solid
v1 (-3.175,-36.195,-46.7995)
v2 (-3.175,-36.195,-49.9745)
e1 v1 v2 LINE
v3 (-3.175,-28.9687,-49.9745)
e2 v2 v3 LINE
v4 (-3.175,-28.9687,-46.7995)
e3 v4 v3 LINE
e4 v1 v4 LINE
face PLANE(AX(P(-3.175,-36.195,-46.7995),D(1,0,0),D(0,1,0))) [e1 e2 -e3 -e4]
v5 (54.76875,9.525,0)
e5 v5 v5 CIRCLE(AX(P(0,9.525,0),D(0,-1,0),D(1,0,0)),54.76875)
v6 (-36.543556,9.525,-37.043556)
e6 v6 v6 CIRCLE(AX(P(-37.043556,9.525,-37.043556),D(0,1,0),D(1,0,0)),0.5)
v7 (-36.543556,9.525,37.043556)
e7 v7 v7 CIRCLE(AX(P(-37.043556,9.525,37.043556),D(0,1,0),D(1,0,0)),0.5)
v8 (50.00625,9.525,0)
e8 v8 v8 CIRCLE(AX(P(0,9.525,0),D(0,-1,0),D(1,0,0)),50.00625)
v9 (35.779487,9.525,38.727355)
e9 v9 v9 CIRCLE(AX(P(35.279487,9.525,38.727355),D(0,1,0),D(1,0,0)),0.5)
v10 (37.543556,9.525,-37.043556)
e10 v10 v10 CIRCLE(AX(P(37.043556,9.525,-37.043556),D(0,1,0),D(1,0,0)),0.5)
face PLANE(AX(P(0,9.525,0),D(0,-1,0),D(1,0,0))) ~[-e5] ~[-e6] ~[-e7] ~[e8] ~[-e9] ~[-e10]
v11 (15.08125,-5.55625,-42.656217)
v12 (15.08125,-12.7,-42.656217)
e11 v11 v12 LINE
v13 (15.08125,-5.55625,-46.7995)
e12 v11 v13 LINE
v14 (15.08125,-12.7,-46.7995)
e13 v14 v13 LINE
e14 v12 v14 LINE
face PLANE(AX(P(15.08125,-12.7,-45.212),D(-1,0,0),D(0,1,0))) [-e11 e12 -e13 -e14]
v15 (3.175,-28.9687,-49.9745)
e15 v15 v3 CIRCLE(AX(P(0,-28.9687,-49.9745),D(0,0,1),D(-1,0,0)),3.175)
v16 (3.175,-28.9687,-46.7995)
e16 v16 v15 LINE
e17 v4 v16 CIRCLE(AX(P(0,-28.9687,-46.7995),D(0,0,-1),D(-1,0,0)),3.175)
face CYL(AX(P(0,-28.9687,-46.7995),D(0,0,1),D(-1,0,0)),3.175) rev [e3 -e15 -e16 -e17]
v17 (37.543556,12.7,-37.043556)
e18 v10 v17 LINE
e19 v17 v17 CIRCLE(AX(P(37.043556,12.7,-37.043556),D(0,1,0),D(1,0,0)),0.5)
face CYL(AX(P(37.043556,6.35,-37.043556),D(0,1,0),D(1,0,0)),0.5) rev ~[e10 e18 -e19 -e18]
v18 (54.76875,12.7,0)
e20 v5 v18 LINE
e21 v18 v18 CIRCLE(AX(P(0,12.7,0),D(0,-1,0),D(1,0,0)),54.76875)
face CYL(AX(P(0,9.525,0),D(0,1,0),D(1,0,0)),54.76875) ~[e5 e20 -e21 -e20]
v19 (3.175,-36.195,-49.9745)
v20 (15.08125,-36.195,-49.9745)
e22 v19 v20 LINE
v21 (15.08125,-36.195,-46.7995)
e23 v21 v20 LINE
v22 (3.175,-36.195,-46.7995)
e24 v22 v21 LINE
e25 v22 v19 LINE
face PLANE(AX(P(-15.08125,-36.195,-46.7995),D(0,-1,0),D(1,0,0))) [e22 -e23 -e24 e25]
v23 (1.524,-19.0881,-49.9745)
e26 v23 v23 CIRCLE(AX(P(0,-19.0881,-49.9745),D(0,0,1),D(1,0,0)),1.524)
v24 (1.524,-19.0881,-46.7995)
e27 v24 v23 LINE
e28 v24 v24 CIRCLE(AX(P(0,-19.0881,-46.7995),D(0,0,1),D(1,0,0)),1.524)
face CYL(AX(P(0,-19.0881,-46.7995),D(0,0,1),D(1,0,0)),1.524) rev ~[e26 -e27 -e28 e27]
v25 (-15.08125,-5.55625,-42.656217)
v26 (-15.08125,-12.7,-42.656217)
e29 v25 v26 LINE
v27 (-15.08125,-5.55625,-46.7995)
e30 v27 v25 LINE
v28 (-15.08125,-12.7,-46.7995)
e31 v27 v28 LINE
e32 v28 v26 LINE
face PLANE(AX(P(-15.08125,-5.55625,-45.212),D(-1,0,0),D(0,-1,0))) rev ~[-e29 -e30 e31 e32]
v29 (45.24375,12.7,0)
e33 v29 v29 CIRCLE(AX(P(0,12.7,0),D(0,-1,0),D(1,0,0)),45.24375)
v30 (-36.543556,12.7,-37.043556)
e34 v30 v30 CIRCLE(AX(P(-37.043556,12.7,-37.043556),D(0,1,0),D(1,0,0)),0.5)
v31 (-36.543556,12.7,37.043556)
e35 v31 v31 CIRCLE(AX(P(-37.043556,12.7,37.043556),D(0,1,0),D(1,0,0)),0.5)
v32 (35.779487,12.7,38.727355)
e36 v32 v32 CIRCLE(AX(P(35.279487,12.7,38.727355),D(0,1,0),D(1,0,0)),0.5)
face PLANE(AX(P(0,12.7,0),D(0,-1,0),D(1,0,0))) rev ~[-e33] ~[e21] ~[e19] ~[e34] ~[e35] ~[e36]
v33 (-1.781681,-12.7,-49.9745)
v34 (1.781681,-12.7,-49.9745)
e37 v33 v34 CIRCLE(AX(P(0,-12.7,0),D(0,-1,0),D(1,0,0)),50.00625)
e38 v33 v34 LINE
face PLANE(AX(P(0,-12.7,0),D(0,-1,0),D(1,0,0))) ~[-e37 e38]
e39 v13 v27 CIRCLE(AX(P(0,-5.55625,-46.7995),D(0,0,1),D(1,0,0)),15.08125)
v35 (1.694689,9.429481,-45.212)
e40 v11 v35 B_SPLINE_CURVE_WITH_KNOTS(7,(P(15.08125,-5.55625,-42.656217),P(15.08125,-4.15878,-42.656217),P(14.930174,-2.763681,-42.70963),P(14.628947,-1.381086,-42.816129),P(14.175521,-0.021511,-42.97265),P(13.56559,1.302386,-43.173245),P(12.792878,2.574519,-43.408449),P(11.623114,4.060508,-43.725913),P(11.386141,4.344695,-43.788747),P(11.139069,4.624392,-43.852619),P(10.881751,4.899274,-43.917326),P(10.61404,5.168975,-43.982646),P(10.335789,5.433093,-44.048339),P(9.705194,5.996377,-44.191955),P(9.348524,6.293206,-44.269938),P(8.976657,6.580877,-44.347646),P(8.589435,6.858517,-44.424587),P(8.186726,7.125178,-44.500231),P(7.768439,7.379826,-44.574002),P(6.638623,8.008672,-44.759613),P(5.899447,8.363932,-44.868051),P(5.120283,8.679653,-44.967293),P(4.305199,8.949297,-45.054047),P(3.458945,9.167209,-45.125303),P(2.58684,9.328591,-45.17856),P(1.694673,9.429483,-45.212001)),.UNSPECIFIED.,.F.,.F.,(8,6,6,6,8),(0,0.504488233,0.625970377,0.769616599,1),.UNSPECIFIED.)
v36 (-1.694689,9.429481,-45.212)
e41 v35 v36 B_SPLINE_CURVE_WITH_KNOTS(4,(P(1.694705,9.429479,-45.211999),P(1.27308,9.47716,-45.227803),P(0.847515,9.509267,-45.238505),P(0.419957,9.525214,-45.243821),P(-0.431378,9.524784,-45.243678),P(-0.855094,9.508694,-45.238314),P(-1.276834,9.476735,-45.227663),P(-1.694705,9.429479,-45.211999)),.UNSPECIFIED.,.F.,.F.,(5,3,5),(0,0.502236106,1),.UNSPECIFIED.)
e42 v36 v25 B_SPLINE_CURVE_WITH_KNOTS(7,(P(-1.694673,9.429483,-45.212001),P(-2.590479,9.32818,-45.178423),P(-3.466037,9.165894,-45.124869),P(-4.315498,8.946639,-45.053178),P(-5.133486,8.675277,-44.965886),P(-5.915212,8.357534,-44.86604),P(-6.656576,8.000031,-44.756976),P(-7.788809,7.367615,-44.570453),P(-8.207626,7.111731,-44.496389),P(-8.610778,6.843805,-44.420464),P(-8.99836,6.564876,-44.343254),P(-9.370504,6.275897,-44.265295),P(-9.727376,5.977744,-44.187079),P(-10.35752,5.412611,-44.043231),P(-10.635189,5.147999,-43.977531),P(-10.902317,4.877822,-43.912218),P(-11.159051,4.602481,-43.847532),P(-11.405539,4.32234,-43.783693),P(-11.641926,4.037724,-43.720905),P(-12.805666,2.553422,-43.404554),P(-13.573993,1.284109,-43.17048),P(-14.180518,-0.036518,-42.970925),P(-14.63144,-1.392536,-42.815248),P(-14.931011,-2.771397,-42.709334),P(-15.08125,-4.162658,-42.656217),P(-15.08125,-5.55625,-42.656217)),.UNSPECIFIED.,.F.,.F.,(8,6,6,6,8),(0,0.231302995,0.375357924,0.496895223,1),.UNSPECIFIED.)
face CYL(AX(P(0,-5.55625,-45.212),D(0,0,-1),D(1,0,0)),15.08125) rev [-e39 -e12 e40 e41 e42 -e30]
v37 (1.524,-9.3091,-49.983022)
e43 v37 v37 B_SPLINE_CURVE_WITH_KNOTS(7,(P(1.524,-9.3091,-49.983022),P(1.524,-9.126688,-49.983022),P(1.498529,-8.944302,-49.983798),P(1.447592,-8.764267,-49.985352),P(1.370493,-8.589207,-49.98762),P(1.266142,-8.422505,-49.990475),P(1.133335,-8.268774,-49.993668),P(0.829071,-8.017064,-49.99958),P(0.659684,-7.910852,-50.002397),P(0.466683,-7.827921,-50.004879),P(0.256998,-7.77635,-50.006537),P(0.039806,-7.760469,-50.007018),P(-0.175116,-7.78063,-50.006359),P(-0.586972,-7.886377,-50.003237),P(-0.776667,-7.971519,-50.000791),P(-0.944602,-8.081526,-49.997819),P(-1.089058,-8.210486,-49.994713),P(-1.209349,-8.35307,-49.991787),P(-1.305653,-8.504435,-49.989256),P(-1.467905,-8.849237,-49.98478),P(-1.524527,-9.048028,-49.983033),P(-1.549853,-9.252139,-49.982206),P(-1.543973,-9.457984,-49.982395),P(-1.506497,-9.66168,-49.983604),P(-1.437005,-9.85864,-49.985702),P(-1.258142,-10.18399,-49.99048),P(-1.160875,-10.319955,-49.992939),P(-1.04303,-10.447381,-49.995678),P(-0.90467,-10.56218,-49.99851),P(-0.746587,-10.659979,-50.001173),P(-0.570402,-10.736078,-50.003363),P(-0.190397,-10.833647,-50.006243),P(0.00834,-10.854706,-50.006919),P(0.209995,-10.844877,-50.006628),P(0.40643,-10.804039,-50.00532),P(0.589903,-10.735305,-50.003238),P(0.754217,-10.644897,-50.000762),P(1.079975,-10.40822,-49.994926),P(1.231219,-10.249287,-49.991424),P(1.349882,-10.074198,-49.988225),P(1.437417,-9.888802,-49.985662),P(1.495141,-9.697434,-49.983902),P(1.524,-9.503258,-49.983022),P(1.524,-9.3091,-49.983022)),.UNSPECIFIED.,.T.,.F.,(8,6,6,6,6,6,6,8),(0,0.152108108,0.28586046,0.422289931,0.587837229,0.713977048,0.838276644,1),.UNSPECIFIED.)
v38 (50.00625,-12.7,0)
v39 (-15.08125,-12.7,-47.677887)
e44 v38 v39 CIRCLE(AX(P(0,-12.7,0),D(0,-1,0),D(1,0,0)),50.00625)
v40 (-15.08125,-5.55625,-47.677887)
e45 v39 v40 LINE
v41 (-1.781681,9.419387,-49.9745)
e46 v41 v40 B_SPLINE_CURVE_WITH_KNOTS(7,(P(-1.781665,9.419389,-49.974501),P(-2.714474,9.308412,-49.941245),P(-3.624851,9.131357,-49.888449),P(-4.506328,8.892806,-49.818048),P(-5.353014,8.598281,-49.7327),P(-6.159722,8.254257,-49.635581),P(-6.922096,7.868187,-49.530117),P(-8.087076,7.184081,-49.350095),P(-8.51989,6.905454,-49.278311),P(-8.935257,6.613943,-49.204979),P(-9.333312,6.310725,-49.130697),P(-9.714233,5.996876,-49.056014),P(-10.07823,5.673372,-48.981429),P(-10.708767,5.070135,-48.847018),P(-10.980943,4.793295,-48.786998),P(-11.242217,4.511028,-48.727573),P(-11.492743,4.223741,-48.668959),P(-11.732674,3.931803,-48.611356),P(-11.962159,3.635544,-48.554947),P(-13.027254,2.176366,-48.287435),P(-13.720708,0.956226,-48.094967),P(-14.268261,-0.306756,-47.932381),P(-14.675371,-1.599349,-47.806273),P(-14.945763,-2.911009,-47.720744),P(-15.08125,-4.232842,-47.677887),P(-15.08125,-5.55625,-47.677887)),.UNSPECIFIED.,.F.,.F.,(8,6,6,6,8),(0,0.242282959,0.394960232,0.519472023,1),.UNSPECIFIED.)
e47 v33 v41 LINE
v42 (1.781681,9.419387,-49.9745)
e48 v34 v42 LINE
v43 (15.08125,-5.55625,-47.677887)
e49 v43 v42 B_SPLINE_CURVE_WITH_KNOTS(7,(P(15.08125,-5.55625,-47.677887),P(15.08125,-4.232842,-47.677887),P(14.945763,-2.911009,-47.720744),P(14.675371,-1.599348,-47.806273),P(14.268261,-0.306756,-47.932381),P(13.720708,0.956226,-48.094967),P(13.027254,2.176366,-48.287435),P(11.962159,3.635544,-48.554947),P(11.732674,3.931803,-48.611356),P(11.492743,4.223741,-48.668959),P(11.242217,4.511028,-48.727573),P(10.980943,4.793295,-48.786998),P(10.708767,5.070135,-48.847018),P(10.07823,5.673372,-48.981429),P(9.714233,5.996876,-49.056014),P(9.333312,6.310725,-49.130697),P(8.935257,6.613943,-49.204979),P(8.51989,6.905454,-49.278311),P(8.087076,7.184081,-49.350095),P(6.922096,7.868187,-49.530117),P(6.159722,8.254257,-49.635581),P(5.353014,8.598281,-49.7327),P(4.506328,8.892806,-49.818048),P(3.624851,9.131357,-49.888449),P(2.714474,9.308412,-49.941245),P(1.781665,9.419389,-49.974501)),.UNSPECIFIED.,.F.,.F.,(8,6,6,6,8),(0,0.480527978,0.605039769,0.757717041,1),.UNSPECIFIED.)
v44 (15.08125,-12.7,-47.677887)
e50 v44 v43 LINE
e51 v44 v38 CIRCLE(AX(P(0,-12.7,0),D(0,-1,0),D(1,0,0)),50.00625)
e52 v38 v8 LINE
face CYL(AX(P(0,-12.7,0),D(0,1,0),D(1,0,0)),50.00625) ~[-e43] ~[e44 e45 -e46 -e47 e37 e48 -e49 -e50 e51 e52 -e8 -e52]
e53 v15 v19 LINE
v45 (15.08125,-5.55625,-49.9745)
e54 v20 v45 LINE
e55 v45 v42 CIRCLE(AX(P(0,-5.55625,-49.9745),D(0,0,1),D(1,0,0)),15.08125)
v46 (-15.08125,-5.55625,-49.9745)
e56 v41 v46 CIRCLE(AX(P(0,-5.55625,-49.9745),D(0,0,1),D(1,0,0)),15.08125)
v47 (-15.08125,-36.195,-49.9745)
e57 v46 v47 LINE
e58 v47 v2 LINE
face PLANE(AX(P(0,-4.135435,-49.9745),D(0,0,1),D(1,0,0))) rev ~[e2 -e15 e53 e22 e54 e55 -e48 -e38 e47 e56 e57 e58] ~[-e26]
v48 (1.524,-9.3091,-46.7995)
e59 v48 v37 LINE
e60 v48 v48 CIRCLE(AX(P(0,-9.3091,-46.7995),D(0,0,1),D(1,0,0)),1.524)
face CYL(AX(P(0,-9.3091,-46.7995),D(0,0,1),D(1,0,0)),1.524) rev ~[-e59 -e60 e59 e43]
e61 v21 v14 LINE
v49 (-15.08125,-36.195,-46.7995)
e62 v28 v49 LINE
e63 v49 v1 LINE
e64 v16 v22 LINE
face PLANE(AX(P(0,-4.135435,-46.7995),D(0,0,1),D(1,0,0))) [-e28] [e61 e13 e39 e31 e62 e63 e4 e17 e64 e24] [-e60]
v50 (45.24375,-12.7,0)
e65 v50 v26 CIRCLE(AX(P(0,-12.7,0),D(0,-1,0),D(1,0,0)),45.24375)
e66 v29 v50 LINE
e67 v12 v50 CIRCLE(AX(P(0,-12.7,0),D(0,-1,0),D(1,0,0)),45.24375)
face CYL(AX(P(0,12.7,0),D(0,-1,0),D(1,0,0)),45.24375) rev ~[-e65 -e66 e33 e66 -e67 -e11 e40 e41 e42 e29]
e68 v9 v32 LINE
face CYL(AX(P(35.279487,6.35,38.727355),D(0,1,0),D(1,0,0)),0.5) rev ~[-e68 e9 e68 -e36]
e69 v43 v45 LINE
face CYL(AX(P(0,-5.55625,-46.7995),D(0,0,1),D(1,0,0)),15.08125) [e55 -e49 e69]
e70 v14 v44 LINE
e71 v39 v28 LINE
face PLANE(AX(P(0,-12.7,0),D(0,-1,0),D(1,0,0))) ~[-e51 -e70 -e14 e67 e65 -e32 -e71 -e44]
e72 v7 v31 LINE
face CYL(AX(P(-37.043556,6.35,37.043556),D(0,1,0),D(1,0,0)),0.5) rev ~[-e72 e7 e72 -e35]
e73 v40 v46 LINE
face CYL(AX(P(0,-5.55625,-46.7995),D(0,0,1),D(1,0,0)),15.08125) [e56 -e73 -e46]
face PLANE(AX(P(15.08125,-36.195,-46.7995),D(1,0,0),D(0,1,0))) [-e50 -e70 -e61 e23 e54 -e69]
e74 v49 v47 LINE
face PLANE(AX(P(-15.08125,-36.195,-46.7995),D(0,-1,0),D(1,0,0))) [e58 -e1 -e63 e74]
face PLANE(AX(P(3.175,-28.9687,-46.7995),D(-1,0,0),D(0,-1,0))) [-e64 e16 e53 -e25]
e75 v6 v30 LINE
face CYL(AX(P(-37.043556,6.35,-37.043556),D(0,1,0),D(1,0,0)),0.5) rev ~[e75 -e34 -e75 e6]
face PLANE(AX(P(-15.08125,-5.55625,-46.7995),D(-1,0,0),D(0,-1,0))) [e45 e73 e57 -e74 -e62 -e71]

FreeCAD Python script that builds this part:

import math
import FreeCAD as App
import Part
import Sketcher

V = App.Vector
Q = App.Units.Quantity


def add_polygon(sketch, points):
    """Adds a closed chain of lines whose ends are joined by coincident constraints."""
    first, n = sketch.GeometryCount, len(points)
    for a, b in zip(points, points[1:] + points[:1]):
        sketch.addGeometry(Part.LineSegment(App.Vector(*a, 0), App.Vector(*b, 0)), False)
    for i in range(n):
        sketch.addConstraint(Sketcher.Constraint("Coincident", first + i, 2, first + (i + 1) % n, 1))

doc = App.newDocument("Part")
params = doc.addObject("Spreadsheet::Sheet", "Params")
for row, (alias, value) in enumerate([
    ("sketch1_height", "1 in"),
    ("sketch1_width", "0.1875 in"),
    ("sketch1_height2", "0.875 in"),
    ("revolution_angle", "360 deg"),
    ("sketch2_radius", "0.59375 in"),
    ("sketch2_height", "0.28125 in"),
    ("pocket1_length", "0.13 in"),
    ("pocket1_length2", "0.0625 in"),
    ("sketch3_radius", "0.59375 in"),
    ("pad1_length", "0.125 in"),
    ("sketch4_diameter", "0.12 in"),
    ("sketch4_radius", "0.125 in"),
    ("hole_diameter", "1 mm"),
    ("hole_depth", "0.125 in"),
], start=1):
    params.set(f"A{row}", alias)
    params.set(f"B{row}", "=" + value)
    params.setAlias(f"B{row}", alias)

body = doc.addObject("PartDesign::Body", "Body")

# Sketch on XY plane
sketch1 = body.newObject("Sketcher::SketchObject", "Sketch")
sketch1.AttachmentSupport = (doc.getObject("XY_Plane"), [""])
sketch1.MapMode = "FlatFace"
add_polygon(sketch1, [(45.24375, -12.7), (50.00625, -12.7), (50.00625, 9.525), (54.76875, 9.525), (54.76875, 12.7), (45.24375, 12.7)])  # lines 0-5
sketch1.addConstraint([
    Sketcher.Constraint("Horizontal", 0),
    Sketcher.Constraint("Vertical", 1),
    Sketcher.Constraint("Horizontal", 2),
    Sketcher.Constraint("Vertical", 3),
    Sketcher.Constraint("Horizontal", 4),
    Sketcher.Constraint("Vertical", 5),
    Sketcher.Constraint("Equal", 0, 2),
    Sketcher.Constraint("DistanceY", 5, 2, 5, 1, Q("1 in")),
    Sketcher.Constraint("DistanceY", 0, 2, -1, 1, Q("0.5 in")),
    Sketcher.Constraint("DistanceX", 0, 1, 0, 2, Q("0.1875 in")),
    Sketcher.Constraint("DistanceY", 1, 1, 1, 2, Q("0.875 in")),
    Sketcher.Constraint("DistanceX", -1, 1, 0, 2, Q("1.96875 in")),
])
sketch1.setExpression("Constraints[13]", "Params.sketch1_height")
sketch1.setExpression("Constraints[15]", "Params.sketch1_width")
sketch1.setExpression("Constraints[16]", "Params.sketch1_height2")
revolution = body.newObject("PartDesign::Revolution", "Revolution")
revolution.Profile = sketch1
revolution.ReferenceAxis = (sketch1, ["V_Axis"])
revolution.setExpression("Angle", "Params.revolution_angle")

# Sketch on XY plane
sketch2 = body.newObject("Sketcher::SketchObject", "Sketch001")
sketch2.AttachmentSupport = (doc.getObject("XY_Plane"), [""])
sketch2.MapMode = "FlatFace"
sketch2.AttachmentOffset = App.Placement(V(0, 0, -1.78 * 25.4), App.Rotation())
sketch2.addGeometry([
    Part.LineSegment(V(-15.08125, -12.7, 0), V(15.08125, -12.7, 0)),
    Part.LineSegment(V(15.08125, -12.7, 0), V(15.08125, -5.55625, 0)),
    Part.ArcOfCircle(Part.Circle(V(0, -5.55625, 0), V(0, 0, 1), 15.08125), math.radians(0), math.radians(180)),
    Part.LineSegment(V(-15.08125, -5.55625, 0), V(-15.08125, -12.7, 0)),
], False)
sketch2.addConstraint([
    Sketcher.Constraint("Coincident", 0, 2, 1, 1),
    Sketcher.Constraint("Tangent", 1, 2, 2, 1),
    Sketcher.Constraint("Tangent", 2, 2, 3, 1),
    Sketcher.Constraint("Coincident", 3, 2, 0, 1),
    Sketcher.Constraint("Horizontal", 0),
    Sketcher.Constraint("Vertical", 1),
    Sketcher.Constraint("Vertical", 3),
    Sketcher.Constraint("PointOnObject", 2, 3, -2),
    Sketcher.Constraint("Radius", 2, Q("0.59375 in")),
    Sketcher.Constraint("DistanceY", 0, 2, -1, 1, Q("0.5 in")),
    Sketcher.Constraint("DistanceY", 1, 1, 1, 2, Q("0.28125 in")),
])
sketch2.setExpression("Constraints[8]", "Params.sketch2_radius")
sketch2.setExpression("Constraints[10]", "Params.sketch2_height")
pocket1 = body.newObject("PartDesign::Pocket", "Pocket")
pocket1.Profile = sketch2
pocket1.Type = "TwoLengths"
pocket1.setExpression("Length", "Params.pocket1_length")
pocket1.setExpression("Length2", "Params.pocket1_length2")
pocket1.Reversed = True

# Sketch on XY plane
sketch3 = body.newObject("Sketcher::SketchObject", "Sketch002")
sketch3.AttachmentSupport = (doc.getObject("XY_Plane"), [""])
sketch3.MapMode = "FlatFace"
sketch3.AttachmentOffset = App.Placement(V(0, 0, -1.8425 * 25.4), App.Rotation())
sketch3.addGeometry([
    Part.ArcOfCircle(Part.Circle(V(0, -5.55625, 0), V(0, 0, 1), 15.08125), math.radians(0), math.radians(180)),
    Part.LineSegment(V(-15.08125, -5.55625, 0), V(-15.08125, -36.195, 0)),
    Part.LineSegment(V(-15.08125, -36.195, 0), V(15.08125, -36.195, 0)),
    Part.LineSegment(V(15.08125, -36.195, 0), V(15.08125, -5.55625, 0)),
], False)
sketch3.addConstraint([
    Sketcher.Constraint("Tangent", 0, 2, 1, 1),
    Sketcher.Constraint("Coincident", 1, 2, 2, 1),
    Sketcher.Constraint("Coincident", 2, 2, 3, 1),
    Sketcher.Constraint("Tangent", 3, 2, 0, 1),
    Sketcher.Constraint("Vertical", 1),
    Sketcher.Constraint("Horizontal", 2),
    Sketcher.Constraint("Vertical", 3),
    Sketcher.Constraint("PointOnObject", 0, 3, -2),
    Sketcher.Constraint("Radius", 0, Q("0.59375 in")),
    Sketcher.Constraint("DistanceY", 0, 3, -1, 1, Q("0.21875 in")),
    Sketcher.Constraint("DistanceY", 1, 2, -1, 1, Q("1.425 in")),
])
sketch3.setExpression("Constraints[8]", "Params.sketch3_radius")
pad1 = body.newObject("PartDesign::Pad", "Pad")
pad1.Profile = sketch3
pad1.setExpression("Length", "Params.pad1_length")
pad1.Reversed = True

# Sketch on XY plane
sketch4 = body.newObject("Sketcher::SketchObject", "Sketch003")
sketch4.AttachmentSupport = (doc.getObject("XY_Plane"), [""])
sketch4.MapMode = "FlatFace"
sketch4.AttachmentOffset = App.Placement(V(0, 0, -1.8425 * 25.4), App.Rotation())
sketch4.addGeometry([
    Part.Circle(V(0, -19.0881, 0), V(0, 0, 1), 1.524),  # 0
    Part.Circle(V(0, -9.3091, 0), V(0, 0, 1), 1.524),  # 1
    Part.LineSegment(V(-3.175, -28.9687, 0), V(-3.175, -36.195, 0)),  # 2
    Part.LineSegment(V(-3.175, -36.195, 0), V(3.175, -36.195, 0)),  # 3
    Part.LineSegment(V(3.175, -36.195, 0), V(3.175, -28.9687, 0)),  # 4
    Part.ArcOfCircle(Part.Circle(V(0, -28.9687, 0), V(0, 0, 1), 3.175), math.radians(0), math.radians(180)),  # 5
], False)
sketch4.addConstraint([
    Sketcher.Constraint("Coincident", 2, 2, 3, 1),
    Sketcher.Constraint("Coincident", 3, 2, 4, 1),
    Sketcher.Constraint("Tangent", 4, 2, 5, 1),
    Sketcher.Constraint("Tangent", 5, 2, 2, 1),
    Sketcher.Constraint("Vertical", 2),
    Sketcher.Constraint("Horizontal", 3),
    Sketcher.Constraint("Vertical", 4),
    Sketcher.Constraint("Equal", 0, 1),
    Sketcher.Constraint("PointOnObject", 0, 3, -2),
    Sketcher.Constraint("PointOnObject", 1, 3, -2),
    Sketcher.Constraint("PointOnObject", 5, 3, -2),
    Sketcher.Constraint("Diameter", 0, Q("0.12 in")),
    Sketcher.Constraint("Radius", 5, Q("0.125 in")),
    Sketcher.Constraint("DistanceY", 2, 2, 2, 1, Q("0.2845 in")),
    Sketcher.Constraint("DistanceY", 2, 2, -1, 1, Q("1.425 in")),
    Sketcher.Constraint("DistanceY", 0, 3, 1, 3, Q("0.385 in")),
    Sketcher.Constraint("DistanceY", 5, 3, 0, 3, Q("0.389 in")),
])
sketch4.setExpression("Constraints[11]", "Params.sketch4_diameter")
sketch4.setExpression("Constraints[12]", "Params.sketch4_radius")
pocket2 = body.newObject("PartDesign::Pocket", "Pocket001")
pocket2.Profile = sketch4
pocket2.Type = "ThroughAll"

# Sketch on XZ plane
sketch5 = body.newObject("Sketcher::SketchObject", "Sketch004")
sketch5.AttachmentSupport = (doc.getObject("XZ_Plane"), [""])
sketch5.MapMode = "FlatFace"
sketch5.AttachmentOffset = App.Placement(V(0, 0, -0.375 * 25.4), App.Rotation())
sketch5.addGeometry([
    Part.Circle(V(35.279487, 38.727355, 0), V(0, 0, 1), 0.5),
    Part.Circle(V(37.043556, -37.043556, 0), V(0, 0, 1), 0.5),
    Part.Circle(V(-37.043556, -37.043556, 0), V(0, 0, 1), 0.5),
    Part.Circle(V(-37.043556, 37.043556, 0), V(0, 0, 1), 0.5),
], False)
sketch5.addConstraint([
    Sketcher.Constraint("Equal", 0, 1),
    Sketcher.Constraint("Equal", 1, 2),
    Sketcher.Constraint("Equal", 2, 3),
    Sketcher.Constraint("Symmetric", 1, 3, 3, 3, -1, 1),
    Sketcher.Constraint("Symmetric", 1, 3, 2, 3, -2),
    Sketcher.Constraint("Diameter", 0, Q("1 mm")),
    Sketcher.Constraint("DistanceY", 3, 3, 0, 3, Q("1.683798 mm")),
    Sketcher.Constraint("DistanceX", 0, 3, 1, 3, Q("1.76407 mm")),
    Sketcher.Constraint("DistanceY", 1, 3, 0, 3, Q("75.770911 mm")),
    Sketcher.Constraint("DistanceX", -1, 1, 0, 3, Q("35.279487 mm")),
])
doc.recompute()
hole = body.newObject("PartDesign::Hole", "Hole")
hole.Profile = sketch5
hole.ThreadType = "None"
hole.setExpression("Diameter", "Params.hole_diameter")
hole.DepthType = "Dimension"
hole.setExpression("Depth", "Params.hole_depth")
hole.DrillPoint = "Flat"

doc.recompute()
